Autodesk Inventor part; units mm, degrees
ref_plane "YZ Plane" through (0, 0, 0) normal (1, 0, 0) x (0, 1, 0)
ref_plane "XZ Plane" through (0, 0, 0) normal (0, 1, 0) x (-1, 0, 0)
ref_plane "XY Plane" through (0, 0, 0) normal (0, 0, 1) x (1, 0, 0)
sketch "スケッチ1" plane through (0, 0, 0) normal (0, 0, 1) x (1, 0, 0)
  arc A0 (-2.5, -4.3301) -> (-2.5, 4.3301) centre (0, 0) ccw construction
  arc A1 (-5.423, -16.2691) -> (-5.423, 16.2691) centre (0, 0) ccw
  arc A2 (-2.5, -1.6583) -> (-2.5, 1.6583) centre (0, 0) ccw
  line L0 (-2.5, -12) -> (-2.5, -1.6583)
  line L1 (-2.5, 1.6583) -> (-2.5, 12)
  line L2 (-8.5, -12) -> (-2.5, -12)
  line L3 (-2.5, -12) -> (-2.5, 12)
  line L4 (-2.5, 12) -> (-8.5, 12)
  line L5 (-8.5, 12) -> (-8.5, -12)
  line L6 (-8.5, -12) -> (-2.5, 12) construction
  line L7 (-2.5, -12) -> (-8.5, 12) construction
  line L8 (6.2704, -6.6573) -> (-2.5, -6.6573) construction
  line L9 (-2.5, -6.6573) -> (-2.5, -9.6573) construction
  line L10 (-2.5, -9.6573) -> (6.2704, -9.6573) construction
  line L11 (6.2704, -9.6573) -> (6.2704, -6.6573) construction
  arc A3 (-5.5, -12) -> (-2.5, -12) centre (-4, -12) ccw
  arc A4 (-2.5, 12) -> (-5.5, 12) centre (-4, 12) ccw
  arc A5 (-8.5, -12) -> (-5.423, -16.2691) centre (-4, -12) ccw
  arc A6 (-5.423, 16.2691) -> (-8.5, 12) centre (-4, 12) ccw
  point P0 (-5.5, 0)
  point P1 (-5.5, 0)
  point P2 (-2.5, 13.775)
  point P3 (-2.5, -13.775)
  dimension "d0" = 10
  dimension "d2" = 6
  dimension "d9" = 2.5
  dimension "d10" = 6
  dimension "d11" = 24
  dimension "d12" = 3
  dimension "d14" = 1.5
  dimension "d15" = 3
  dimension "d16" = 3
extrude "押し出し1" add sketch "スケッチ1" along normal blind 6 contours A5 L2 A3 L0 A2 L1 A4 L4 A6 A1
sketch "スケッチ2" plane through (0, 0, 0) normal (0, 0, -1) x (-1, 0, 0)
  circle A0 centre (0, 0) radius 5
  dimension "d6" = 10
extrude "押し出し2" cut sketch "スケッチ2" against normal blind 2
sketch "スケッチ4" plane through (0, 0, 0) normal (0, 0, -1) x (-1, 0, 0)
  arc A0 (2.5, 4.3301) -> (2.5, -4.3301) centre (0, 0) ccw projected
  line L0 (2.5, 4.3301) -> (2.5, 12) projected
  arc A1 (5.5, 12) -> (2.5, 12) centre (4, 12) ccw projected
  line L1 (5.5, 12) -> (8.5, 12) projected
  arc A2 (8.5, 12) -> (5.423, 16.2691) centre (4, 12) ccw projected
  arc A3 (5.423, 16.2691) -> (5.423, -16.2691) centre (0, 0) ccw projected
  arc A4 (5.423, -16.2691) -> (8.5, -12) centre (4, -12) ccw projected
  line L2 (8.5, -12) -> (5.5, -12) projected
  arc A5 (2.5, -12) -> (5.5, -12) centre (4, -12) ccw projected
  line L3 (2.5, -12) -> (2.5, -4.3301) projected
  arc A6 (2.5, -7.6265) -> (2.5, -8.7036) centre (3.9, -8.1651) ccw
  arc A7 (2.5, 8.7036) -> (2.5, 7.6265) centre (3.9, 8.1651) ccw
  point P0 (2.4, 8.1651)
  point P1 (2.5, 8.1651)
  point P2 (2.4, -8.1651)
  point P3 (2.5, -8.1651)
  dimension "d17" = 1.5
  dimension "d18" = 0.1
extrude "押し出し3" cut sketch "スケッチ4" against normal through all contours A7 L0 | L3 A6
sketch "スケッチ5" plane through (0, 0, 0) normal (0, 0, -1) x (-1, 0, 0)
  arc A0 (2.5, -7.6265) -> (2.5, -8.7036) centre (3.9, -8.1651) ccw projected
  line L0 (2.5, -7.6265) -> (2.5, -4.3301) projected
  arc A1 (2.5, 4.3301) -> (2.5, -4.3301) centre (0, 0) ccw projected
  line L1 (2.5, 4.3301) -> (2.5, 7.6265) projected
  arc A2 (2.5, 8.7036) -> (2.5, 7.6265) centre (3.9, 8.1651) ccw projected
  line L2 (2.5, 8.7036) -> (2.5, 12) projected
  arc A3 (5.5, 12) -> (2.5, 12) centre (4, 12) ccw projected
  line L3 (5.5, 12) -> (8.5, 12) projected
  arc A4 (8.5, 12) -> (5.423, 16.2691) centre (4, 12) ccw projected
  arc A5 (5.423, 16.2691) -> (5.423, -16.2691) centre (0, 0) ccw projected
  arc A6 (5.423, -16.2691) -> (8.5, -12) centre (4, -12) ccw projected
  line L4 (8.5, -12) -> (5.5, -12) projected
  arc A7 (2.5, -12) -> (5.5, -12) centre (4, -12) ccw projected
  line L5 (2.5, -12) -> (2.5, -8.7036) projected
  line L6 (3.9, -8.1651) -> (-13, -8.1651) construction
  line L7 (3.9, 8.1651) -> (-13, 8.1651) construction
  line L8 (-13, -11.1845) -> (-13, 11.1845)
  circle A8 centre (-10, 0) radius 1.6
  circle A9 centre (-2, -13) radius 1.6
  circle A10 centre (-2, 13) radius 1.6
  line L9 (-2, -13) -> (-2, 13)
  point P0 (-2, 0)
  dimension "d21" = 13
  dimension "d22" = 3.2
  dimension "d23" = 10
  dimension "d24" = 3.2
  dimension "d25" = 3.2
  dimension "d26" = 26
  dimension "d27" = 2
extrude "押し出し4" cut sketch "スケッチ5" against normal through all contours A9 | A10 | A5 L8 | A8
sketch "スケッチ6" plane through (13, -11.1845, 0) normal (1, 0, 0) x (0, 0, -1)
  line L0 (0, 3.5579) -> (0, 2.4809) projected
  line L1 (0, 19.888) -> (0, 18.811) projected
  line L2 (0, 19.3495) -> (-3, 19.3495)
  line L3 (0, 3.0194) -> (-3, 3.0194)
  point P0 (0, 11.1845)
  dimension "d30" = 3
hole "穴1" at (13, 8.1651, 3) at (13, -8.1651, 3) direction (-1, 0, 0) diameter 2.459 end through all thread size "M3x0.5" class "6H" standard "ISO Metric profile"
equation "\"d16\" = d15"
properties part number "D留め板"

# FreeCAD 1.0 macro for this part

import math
import FreeCAD as App
import Part
import Sketcher

V = App.Vector
Q = App.Units.Quantity

doc = App.newDocument("Part")
body = doc.addObject("PartDesign::Body", "Body")

sketch1 = body.newObject("Sketcher::SketchObject", "Sketch")
sketch1.AttachmentSupport = (doc.getObject("XY_Plane"), [""])
sketch1.MapMode = "FlatFace"
sketch1.addGeometry([
    Part.ArcOfCircle(Part.Circle(V(-4, -12, 0), V(0, 0, 1), 4.5), math.radians(180), math.radians(252)),
    Part.ArcOfCircle(Part.Circle(V(0, 0, 0), V(0, 0, 1), 17.1), math.radians(-108), math.radians(108)),
    Part.ArcOfCircle(Part.Circle(V(-4, 12, 0), V(0, 0, 1), 4.5), math.radians(108), math.radians(180)),
    Part.LineSegment(V(-8.5, 12, 0), V(-5.5, 12, 0)),
    Part.ArcOfCircle(Part.Circle(V(-4, 12, 0), V(0, 0, 1), 1.5), math.radians(0), math.radians(180)),
    Part.LineSegment(V(-2.5, 12, 0), V(-2.5, 1.7, 0)),
    Part.ArcOfCircle(Part.Circle(V(0, 0, 0), V(0, 0, 1), 3), math.radians(-146), math.radians(146)),
    Part.LineSegment(V(-2.5, -1.7, 0), V(-2.5, -12, 0)),
    Part.ArcOfCircle(Part.Circle(V(-4, -12, 0), V(0, 0, 1), 1.5), math.radians(180), math.radians(360)),
    Part.LineSegment(V(-5.5, -12, 0), V(-8.5, -12, 0)),
], False)
sketch1.addConstraint([
    Sketcher.Constraint("Tangent", 0, 2, 1, 1),
    Sketcher.Constraint("Tangent", 1, 2, 2, 1),
    Sketcher.Constraint("Coincident", 2, 2, 3, 1),
    Sketcher.Constraint("Coincident", 3, 2, 4, 2),
    Sketcher.Constraint("Tangent", 4, 1, 5, 1),
    Sketcher.Constraint("Coincident", 5, 2, 6, 2),
    Sketcher.Constraint("Coincident", 6, 1, 7, 1),
    Sketcher.Constraint("Tangent", 7, 2, 8, 2),
    Sketcher.Constraint("Coincident", 8, 1, 9, 1),
    Sketcher.Constraint("Coincident", 9, 2, 0, 1),
    Sketcher.Constraint("Horizontal", 3),
    Sketcher.Constraint("Vertical", 5),
    Sketcher.Constraint("Vertical", 7),
    Sketcher.Constraint("Horizontal", 9),
    Sketcher.Constraint("Coincident", 1, 3, -1, 1),
    Sketcher.Constraint("Coincident", 6, 3, -1, 1),
    Sketcher.Constraint("Coincident", 4, 3, 2, 3),
    Sketcher.Constraint("Coincident", 8, 3, 0, 3),
    Sketcher.Constraint("Equal", 0, 2),
    Sketcher.Constraint("Equal", 4, 8),
    Sketcher.Constraint("Symmetric", 3, 2, 8, 1, -1),
    Sketcher.Constraint("Horizontal", 4, 3, 2, 2),
    Sketcher.Constraint("Radius", 6, Q("3 mm")),
    Sketcher.Constraint("Radius", 4, Q("1.5 mm")),
    Sketcher.Constraint("DistanceX", 3, 1, 3, 2, Q("3 mm")),
    Sketcher.Constraint("DistanceY", 0, 3, 2, 3, Q("24 mm")),
    Sketcher.Constraint("DistanceX", 4, 1, -1, 1, Q("2.5 mm")),
])
pad1 = body.newObject("PartDesign::Pad", "Pad")
pad1.Profile = sketch1
pad1.Length = 6

sketch2 = body.newObject("Sketcher::SketchObject", "Sketch001")
sketch2.AttachmentSupport = (doc.getObject("XY_Plane"), [""])
sketch2.MapMode = "FlatFace"
sketch2.addGeometry(Part.Circle(V(0, 0, 0), V(0, 0, 1), 5), False)
sketch2.addConstraint([
    Sketcher.Constraint("Coincident", 0, 3, -1, 1),
    Sketcher.Constraint("Diameter", 0, Q("10 mm")),
])
pocket1 = body.newObject("PartDesign::Pocket", "Pocket")
pocket1.Profile = sketch2
pocket1.Length = 2
pocket1.Reversed = True

sketch3 = body.newObject("Sketcher::SketchObject", "Sketch002")
sketch3.AttachmentSupport = (doc.getObject("XY_Plane"), [""])
sketch3.MapMode = "FlatFace"
sketch3.addGeometry([
    Part.ArcOfCircle(Part.Circle(V(-3.9, 8.2, 0), V(0, 0, 1), 1.5), math.radians(-21), math.radians(21)),
    Part.LineSegment(V(-2.5, 7.6, 0), V(-2.5, 8.7, 0)),
    Part.LineSegment(V(-2.5, -8.7, 0), V(-2.5, -7.6, 0)),
    Part.ArcOfCircle(Part.Circle(V(-3.9, -8.2, 0), V(0, 0, 1), 1.5), math.radians(-21), math.radians(21)),
], False)
sketch3.addConstraint([
    Sketcher.Constraint("Coincident", 0, 1, 1, 1),
    Sketcher.Constraint("Coincident", 1, 2, 0, 2),
    Sketcher.Constraint("Coincident", 2, 1, 3, 1),
    Sketcher.Constraint("Coincident", 3, 2, 2, 2),
    Sketcher.Constraint("Vertical", 1),
    Sketcher.Constraint("Vertical", 2),
    Sketcher.Constraint("Equal", 0, 3),
    Sketcher.Constraint("Symmetric", 0, 3, 3, 3, -1),
    Sketcher.Constraint("Vertical", 1, 2, 2, 1),
    Sketcher.Constraint("Radius", 0, Q("1.5 mm")),
    Sketcher.Constraint("DistanceX", 0, 3, -1, 1, Q("3.9 mm")),
    Sketcher.Constraint("DistanceX", 0, 1, -1, 1, Q("2.5 mm")),
    Sketcher.Constraint("DistanceY", 2, 1, 0, 1, Q("16.33 mm")),
])
pocket2 = body.newObject("PartDesign::Pocket", "Pocket001")
pocket2.Profile = sketch3
pocket2.Type = "ThroughAll"
pocket2.Reversed = True

sketch4 = body.newObject("Sketcher::SketchObject", "Sketch003")
sketch4.AttachmentSupport = (doc.getObject("XY_Plane"), [""])
sketch4.MapMode = "FlatFace"
sketch4.addGeometry([
    Part.Circle(V(2, -13, 0), V(0, 0, 1), 1.6),
    Part.Circle(V(2, 13, 0), V(0, 0, 1), 1.6),
    Part.ArcOfCircle(Part.Circle(V(0, 0, 0), V(0, 0, 1), 17.1), math.radians(-41), math.radians(41)),
    Part.LineSegment(V(13, 11.2, 0), V(13, -11.2, 0)),
    Part.Circle(V(10, 0, 0), V(0, 0, 1), 1.6),
], False)
sketch4.addConstraint([
    Sketcher.Constraint("Coincident", 2, 1, 3, 2),
    Sketcher.Constraint("Coincident", 3, 1, 2, 2),
    Sketcher.Constraint("Vertical", 3),
    Sketcher.Constraint("Coincident", 2, 3, -1, 1),
    Sketcher.Constraint("Equal", 0, 1),
    Sketcher.Constraint("Equal", 1, 4),
    Sketcher.Constraint("Symmetric", 0, 3, 1, 3, -1),
    Sketcher.Constraint("PointOnObject", 4, 3, -1),
    Sketcher.Constraint("Diameter", 0, Q("3.2 mm")),
    Sketcher.Constraint("DistanceX", -1, 1, 0, 3, Q("2 mm")),
    Sketcher.Constraint("DistanceY", 0, 3, -1, 1, Q("13 mm")),
    Sketcher.Constraint("DistanceX", -1, 1, 4, 3, Q("10 mm")),
    Sketcher.Constraint("DistanceX", -1, 1, 2, 1, Q("13 mm")),
    Sketcher.Constraint("Radius", 2, Q("17.1491 mm")),
])
pocket3 = body.newObject("PartDesign::Pocket", "Pocket002")
pocket3.Profile = sketch4
pocket3.Type = "ThroughAll"
pocket3.Reversed = True

sketch5 = body.newObject("Sketcher::SketchObject", "Sketch004")
sketch5.AttachmentSupport = (doc.getObject("YZ_Plane"), [""])
sketch5.MapMode = "FlatFace"
sketch5.AttachmentOffset = App.Placement(V(0, 0, 13), App.Rotation())
sketch5.addGeometry([
    Part.Circle(V(8.2, 3, 0), V(0, 0, 1), 1.2),
    Part.Circle(V(-8.2, 3, 0), V(0, 0, 1), 1.2),
], False)
sketch5.addConstraint([
    Sketcher.Constraint("Equal", 0, 1),
    Sketcher.Constraint("Symmetric", 0, 3, 1, 3, -2),
    Sketcher.Constraint("Diameter", 0, Q("2.459 mm")),
    Sketcher.Constraint("DistanceY", -1, 1, 0, 3, Q("3 mm")),
    Sketcher.Constraint("DistanceX", -1, 1, 0, 3, Q("8.165 mm")),
])
doc.recompute()
hole = body.newObject("PartDesign::Hole", "Hole")
hole.Profile = sketch5
hole.ThreadType = "None"
hole.Diameter = 2.459
hole.DepthType = "ThroughAll"

doc.recompute()
